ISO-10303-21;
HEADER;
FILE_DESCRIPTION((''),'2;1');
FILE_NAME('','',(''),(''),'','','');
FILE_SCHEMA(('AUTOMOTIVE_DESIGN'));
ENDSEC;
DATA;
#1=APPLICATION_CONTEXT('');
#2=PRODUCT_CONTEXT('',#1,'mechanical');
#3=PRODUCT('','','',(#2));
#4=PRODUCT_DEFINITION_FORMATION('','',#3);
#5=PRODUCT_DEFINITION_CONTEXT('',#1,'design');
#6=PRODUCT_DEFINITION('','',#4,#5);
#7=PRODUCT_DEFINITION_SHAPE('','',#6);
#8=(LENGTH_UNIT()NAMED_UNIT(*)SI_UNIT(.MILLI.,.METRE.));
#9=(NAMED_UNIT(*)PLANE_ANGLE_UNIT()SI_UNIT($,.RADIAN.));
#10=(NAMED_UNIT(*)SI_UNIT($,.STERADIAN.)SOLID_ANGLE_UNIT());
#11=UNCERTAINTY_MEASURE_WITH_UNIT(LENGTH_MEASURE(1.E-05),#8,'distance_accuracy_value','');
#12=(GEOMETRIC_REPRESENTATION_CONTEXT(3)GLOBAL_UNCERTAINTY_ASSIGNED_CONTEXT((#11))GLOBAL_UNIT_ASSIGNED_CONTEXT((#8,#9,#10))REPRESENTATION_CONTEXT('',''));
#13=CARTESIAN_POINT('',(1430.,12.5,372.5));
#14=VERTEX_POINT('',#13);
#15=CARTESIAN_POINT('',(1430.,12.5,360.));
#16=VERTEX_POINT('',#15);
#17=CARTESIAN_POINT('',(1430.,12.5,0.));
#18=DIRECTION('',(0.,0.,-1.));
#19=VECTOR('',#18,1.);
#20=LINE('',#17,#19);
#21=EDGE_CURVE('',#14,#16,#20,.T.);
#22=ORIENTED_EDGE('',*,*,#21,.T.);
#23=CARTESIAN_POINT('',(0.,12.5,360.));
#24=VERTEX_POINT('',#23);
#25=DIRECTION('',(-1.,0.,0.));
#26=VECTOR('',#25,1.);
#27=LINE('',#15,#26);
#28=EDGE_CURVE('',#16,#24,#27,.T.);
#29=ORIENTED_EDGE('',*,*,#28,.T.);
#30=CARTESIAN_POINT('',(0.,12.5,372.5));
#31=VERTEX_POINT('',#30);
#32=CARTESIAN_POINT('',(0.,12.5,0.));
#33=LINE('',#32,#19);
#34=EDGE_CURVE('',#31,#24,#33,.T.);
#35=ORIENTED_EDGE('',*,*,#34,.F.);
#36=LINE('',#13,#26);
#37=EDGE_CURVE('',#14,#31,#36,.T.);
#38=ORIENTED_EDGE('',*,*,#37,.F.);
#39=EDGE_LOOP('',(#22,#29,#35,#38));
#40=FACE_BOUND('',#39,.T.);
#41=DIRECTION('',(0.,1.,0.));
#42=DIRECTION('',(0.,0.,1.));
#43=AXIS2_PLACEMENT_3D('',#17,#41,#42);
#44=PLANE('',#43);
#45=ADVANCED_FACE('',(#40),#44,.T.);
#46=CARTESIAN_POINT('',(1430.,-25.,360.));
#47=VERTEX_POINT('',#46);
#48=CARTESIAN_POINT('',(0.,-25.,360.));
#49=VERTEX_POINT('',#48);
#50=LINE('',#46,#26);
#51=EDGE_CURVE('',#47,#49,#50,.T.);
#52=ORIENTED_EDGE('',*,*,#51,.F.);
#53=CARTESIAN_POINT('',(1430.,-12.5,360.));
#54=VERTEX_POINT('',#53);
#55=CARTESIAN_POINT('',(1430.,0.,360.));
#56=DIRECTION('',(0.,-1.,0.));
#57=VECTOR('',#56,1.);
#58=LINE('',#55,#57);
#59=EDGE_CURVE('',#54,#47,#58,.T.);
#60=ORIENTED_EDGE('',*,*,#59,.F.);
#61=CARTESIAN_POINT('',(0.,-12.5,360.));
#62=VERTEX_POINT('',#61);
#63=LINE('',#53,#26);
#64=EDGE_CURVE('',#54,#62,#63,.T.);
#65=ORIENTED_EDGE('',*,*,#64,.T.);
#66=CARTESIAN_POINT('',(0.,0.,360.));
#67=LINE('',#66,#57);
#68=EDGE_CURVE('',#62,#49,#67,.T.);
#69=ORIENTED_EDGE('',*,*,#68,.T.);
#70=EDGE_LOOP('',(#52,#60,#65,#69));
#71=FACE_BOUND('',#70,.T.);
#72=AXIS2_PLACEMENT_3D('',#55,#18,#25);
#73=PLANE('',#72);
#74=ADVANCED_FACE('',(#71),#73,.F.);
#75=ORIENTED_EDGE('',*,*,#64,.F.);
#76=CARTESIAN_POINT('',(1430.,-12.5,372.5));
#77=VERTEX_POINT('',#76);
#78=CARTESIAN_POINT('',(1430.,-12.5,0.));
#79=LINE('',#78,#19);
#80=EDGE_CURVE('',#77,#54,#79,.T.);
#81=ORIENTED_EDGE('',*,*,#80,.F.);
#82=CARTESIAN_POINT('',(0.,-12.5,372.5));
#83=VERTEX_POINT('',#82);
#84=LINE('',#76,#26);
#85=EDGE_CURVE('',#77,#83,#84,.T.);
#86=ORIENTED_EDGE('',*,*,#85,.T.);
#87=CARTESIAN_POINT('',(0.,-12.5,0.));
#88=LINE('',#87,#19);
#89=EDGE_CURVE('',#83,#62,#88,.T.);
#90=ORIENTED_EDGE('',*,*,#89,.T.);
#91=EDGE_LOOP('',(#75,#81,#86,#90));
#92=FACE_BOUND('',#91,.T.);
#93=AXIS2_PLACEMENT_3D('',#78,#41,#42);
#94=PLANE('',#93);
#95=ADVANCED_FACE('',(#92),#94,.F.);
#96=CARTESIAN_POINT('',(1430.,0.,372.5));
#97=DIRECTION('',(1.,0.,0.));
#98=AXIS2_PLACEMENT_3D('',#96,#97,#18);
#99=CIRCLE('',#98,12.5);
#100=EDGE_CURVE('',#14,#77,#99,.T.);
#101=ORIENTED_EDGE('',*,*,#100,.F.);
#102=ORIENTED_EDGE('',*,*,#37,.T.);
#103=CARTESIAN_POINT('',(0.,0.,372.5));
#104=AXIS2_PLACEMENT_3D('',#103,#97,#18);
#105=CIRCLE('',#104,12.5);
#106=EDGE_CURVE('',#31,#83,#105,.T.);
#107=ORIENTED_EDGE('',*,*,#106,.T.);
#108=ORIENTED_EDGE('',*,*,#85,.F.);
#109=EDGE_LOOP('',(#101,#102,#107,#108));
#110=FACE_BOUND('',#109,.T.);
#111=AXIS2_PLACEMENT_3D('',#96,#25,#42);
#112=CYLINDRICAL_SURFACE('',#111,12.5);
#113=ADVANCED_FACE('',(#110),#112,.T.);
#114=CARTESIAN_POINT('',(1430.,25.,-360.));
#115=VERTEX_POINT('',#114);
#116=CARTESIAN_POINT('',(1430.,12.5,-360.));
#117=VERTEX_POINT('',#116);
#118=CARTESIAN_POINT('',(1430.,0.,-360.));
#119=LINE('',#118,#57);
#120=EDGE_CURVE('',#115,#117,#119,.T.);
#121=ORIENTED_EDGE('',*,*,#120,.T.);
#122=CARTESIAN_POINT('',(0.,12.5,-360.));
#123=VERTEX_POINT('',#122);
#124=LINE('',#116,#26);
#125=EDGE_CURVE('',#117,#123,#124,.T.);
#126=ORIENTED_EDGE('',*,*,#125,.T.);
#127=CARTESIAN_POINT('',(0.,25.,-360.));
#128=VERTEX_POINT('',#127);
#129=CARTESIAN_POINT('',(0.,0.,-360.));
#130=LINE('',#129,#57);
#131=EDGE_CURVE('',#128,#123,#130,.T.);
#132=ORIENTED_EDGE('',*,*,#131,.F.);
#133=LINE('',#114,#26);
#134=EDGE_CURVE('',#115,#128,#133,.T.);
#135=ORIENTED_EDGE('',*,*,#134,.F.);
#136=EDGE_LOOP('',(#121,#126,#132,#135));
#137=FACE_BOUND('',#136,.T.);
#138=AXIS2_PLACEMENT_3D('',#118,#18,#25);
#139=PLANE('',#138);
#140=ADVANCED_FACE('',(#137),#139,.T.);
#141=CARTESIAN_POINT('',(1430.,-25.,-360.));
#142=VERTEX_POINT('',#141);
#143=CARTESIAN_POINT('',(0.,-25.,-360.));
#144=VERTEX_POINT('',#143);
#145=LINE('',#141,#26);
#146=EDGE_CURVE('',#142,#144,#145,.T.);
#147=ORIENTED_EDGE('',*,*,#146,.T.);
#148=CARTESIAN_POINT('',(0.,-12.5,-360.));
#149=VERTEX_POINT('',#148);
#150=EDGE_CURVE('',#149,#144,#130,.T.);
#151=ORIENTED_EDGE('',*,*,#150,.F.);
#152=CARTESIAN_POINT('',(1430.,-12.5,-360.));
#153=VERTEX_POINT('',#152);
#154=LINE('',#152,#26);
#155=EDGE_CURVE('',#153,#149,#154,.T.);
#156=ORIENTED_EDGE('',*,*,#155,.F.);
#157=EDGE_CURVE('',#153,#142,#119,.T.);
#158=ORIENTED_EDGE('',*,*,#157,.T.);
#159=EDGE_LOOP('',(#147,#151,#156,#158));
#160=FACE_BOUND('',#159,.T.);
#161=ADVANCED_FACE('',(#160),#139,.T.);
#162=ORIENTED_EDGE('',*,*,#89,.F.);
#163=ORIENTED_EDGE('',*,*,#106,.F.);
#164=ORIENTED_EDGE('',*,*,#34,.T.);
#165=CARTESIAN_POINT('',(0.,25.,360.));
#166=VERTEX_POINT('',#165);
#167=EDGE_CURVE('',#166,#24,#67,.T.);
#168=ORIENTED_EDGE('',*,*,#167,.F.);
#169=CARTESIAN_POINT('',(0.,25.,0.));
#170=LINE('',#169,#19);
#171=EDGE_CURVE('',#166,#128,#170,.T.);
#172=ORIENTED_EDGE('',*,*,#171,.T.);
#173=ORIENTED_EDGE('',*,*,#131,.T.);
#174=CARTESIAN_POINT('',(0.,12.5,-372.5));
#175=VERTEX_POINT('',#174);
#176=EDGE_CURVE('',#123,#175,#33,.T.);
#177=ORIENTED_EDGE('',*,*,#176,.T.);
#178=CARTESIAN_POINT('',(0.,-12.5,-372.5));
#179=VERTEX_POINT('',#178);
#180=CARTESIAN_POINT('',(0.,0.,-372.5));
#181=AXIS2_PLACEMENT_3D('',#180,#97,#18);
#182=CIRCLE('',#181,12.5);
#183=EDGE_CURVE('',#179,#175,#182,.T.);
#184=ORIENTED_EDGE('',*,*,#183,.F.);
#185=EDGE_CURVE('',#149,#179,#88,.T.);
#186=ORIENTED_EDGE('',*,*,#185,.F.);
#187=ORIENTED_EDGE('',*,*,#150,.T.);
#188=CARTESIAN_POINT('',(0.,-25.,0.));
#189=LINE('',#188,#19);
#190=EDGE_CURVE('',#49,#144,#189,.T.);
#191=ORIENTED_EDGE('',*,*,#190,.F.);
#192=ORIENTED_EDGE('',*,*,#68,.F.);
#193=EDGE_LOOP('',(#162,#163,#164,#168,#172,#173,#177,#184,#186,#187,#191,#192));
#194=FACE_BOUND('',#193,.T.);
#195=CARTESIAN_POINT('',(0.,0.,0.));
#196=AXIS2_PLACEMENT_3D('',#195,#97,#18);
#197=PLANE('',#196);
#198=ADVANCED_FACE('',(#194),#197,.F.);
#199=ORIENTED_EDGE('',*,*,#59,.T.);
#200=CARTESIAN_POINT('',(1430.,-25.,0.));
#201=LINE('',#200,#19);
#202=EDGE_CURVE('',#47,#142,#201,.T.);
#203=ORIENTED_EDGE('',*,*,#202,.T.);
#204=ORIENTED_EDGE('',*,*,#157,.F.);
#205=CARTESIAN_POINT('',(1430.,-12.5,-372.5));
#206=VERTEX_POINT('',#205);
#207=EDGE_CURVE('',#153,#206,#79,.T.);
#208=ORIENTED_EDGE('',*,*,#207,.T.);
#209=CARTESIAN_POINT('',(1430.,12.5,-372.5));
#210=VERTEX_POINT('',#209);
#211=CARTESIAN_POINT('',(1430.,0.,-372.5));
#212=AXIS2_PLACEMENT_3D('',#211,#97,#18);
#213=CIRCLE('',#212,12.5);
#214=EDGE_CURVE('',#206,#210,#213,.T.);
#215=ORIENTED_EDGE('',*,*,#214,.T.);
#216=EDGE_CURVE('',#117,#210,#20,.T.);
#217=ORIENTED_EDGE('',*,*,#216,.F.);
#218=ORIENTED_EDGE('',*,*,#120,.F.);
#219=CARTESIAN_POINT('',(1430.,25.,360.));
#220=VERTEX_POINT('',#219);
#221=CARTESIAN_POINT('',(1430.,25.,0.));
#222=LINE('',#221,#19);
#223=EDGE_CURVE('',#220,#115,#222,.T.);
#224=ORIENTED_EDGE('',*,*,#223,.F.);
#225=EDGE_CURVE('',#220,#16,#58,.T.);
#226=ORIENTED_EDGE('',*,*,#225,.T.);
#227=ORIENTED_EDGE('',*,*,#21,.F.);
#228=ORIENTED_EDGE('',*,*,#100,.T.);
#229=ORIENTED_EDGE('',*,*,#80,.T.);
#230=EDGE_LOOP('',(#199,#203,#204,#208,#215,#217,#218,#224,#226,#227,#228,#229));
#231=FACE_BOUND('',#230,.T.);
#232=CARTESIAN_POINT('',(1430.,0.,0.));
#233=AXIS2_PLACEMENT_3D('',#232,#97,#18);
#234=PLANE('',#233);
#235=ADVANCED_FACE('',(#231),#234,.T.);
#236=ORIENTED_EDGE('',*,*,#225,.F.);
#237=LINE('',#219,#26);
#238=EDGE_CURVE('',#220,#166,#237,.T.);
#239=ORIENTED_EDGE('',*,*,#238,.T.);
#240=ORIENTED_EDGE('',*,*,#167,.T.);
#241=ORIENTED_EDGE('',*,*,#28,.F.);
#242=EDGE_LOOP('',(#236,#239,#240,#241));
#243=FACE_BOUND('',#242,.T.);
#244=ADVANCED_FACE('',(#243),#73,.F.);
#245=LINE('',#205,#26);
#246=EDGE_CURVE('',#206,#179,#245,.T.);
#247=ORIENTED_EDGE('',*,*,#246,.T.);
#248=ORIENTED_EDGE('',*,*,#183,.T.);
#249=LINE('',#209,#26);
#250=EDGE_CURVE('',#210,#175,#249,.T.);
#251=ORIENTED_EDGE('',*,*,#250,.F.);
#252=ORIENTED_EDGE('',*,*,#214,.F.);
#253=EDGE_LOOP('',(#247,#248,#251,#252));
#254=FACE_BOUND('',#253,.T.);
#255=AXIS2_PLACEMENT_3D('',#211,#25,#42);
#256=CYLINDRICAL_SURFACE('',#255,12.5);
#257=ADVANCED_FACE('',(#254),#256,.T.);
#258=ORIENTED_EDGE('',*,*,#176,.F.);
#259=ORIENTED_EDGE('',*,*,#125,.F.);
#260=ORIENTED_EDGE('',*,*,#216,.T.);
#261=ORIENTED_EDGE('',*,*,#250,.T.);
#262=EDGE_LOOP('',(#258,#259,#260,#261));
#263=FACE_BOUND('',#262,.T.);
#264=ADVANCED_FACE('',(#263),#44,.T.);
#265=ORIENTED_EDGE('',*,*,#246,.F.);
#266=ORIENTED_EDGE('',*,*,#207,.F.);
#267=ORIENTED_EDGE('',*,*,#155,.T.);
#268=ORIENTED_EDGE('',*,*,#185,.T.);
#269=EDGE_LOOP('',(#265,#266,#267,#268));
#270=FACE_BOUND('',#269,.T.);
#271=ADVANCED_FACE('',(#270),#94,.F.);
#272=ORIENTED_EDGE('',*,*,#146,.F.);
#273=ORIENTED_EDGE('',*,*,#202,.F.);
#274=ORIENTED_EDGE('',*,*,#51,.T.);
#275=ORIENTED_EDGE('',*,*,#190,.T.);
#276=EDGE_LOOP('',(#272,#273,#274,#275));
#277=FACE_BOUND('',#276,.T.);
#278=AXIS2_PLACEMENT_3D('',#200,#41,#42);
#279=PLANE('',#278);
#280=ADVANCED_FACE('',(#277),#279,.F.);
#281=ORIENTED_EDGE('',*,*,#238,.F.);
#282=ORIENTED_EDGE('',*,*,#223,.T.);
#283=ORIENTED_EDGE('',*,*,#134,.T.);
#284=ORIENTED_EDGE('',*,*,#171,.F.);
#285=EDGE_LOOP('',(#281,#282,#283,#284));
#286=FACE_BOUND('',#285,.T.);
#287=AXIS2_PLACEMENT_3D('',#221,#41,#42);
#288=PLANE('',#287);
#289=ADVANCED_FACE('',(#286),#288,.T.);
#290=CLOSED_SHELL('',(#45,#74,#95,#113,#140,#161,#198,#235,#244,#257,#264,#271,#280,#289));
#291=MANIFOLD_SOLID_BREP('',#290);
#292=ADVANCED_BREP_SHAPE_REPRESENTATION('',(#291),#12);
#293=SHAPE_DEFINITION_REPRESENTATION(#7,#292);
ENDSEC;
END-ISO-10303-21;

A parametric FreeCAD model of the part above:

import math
import FreeCAD as App
import Part
import Sketcher
Q = App.Units.Quantity

doc = App.newDocument("Part")
params = doc.addObject("Spreadsheet::Sheet", "Params")
for row, (alias, value) in enumerate([
    ("sketch1_radius", "12.5 mm"),
    ("sketch1_height", "720 mm"),
    ("sketch1_width", "12.5 mm"),
    ("pad1_length", "1430 mm"),
], start=1):
    params.set(f"A{row}", alias)
    params.set(f"B{row}", "=" + value)
    params.setAlias(f"B{row}", alias)

body = doc.addObject("PartDesign::Body", "Body")

sketch1 = doc.addObject("Sketcher::SketchObject", "Sketch")
body.addObject(sketch1)
sketch1.AttachmentSupport = (doc.YZ_Plane, [""])
sketch1.MapMode = "FlatFace"
sketch1.addGeometry(Part.LineSegment(App.Vector(25, -360, 0), App.Vector(25, 360, 0)), False)
sketch1.addGeometry(Part.LineSegment(App.Vector(25, 360, 0), App.Vector(12, 360, 0)), False)
sketch1.addGeometry(Part.LineSegment(App.Vector(12, 360, 0), App.Vector(12, 372, 0)), False)
sketch1.addGeometry(Part.ArcOfCircle(Part.Circle(App.Vector(0, 372, 0), App.Vector(0, 0, 1), 12), math.radians(0), math.radians(180)), False)
sketch1.addGeometry(Part.LineSegment(App.Vector(-12, 372, 0), App.Vector(-12, 360, 0)), False)
sketch1.addGeometry(Part.LineSegment(App.Vector(-12, 360, 0), App.Vector(-25, 360, 0)), False)
sketch1.addGeometry(Part.LineSegment(App.Vector(-25, 360, 0), App.Vector(-25, -360, 0)), False)
sketch1.addGeometry(Part.LineSegment(App.Vector(-25, -360, 0), App.Vector(-12, -360, 0)), False)
sketch1.addGeometry(Part.LineSegment(App.Vector(-12, -360, 0), App.Vector(-12, -372, 0)), False)
sketch1.addGeometry(Part.ArcOfCircle(Part.Circle(App.Vector(0, -372, 0), App.Vector(0, 0, 1), 12), math.radians(180), math.radians(360)), False)
sketch1.addGeometry(Part.LineSegment(App.Vector(12, -372, 0), App.Vector(12, -360, 0)), False)
sketch1.addGeometry(Part.LineSegment(App.Vector(12, -360, 0), App.Vector(25, -360, 0)), False)
sketch1.addConstraint(Sketcher.Constraint("Coincident", 0, 2, 1, 1))
sketch1.addConstraint(Sketcher.Constraint("Coincident", 1, 2, 2, 1))
sketch1.addConstraint(Sketcher.Constraint("Tangent", 2, 2, 3, 1))
sketch1.addConstraint(Sketcher.Constraint("Tangent", 3, 2, 4, 1))
sketch1.addConstraint(Sketcher.Constraint("Coincident", 4, 2, 5, 1))
sketch1.addConstraint(Sketcher.Constraint("Coincident", 5, 2, 6, 1))
sketch1.addConstraint(Sketcher.Constraint("Coincident", 6, 2, 7, 1))
sketch1.addConstraint(Sketcher.Constraint("Coincident", 7, 2, 8, 1))
sketch1.addConstraint(Sketcher.Constraint("Tangent", 8, 2, 9, 1))
sketch1.addConstraint(Sketcher.Constraint("Tangent", 9, 2, 10, 1))
sketch1.addConstraint(Sketcher.Constraint("Coincident", 10, 2, 11, 1))
sketch1.addConstraint(Sketcher.Constraint("Coincident", 11, 2, 0, 1))
sketch1.addConstraint(Sketcher.Constraint("Vertical", 0))
sketch1.addConstraint(Sketcher.Constraint("Horizontal", 1))
sketch1.addConstraint(Sketcher.Constraint("Vertical", 2))
sketch1.addConstraint(Sketcher.Constraint("Vertical", 4))
sketch1.addConstraint(Sketcher.Constraint("Horizontal", 5))
sketch1.addConstraint(Sketcher.Constraint("Vertical", 6))
sketch1.addConstraint(Sketcher.Constraint("Horizontal", 7))
sketch1.addConstraint(Sketcher.Constraint("Vertical", 8))
sketch1.addConstraint(Sketcher.Constraint("Vertical", 10))
sketch1.addConstraint(Sketcher.Constraint("Horizontal", 11))
sketch1.addConstraint(Sketcher.Constraint("Equal", 3, 9))
sketch1.addConstraint(Sketcher.Constraint("Symmetric", 3, 3, 9, 3, -1, 1))
sketch1.addConstraint(Sketcher.Constraint("Symmetric", 0, 2, 6, 2, -1, 1))
sketch1.addConstraint(Sketcher.Constraint("Symmetric", 1, 2, 4, 2, -2))
sketch1.addConstraint(Sketcher.Constraint("Horizontal", 7, 2, 10, 2))
sketch1.addConstraint(Sketcher.Constraint("Equal", 11, 2))
sketch1.addConstraint(Sketcher.Constraint("Radius", 3, Q("12.5 mm")))
sketch1.addConstraint(Sketcher.Constraint("DistanceY", 0, 1, 0, 2, Q("720 mm")))
sketch1.addConstraint(Sketcher.Constraint("DistanceX", 1, 2, 1, 1, Q("12.5 mm")))
sketch1.setExpression("Constraints[28]", "Params.sketch1_radius")
sketch1.setExpression("Constraints[29]", "Params.sketch1_height")
sketch1.setExpression("Constraints[30]", "Params.sketch1_width")
pad1 = doc.addObject("PartDesign::Pad", "Pad")
body.addObject(pad1)
pad1.Profile = sketch1
pad1.setExpression("Length", "Params.pad1_length")

doc.recompute()
